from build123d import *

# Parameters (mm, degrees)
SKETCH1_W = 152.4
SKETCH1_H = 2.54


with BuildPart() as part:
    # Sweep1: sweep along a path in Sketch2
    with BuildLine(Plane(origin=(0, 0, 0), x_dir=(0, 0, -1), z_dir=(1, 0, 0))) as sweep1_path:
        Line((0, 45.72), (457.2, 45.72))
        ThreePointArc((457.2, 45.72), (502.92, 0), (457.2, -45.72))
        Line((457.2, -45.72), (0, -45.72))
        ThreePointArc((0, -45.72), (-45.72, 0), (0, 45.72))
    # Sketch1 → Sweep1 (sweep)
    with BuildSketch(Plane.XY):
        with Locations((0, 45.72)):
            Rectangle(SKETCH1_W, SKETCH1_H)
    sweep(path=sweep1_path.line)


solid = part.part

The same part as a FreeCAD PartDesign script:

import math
import FreeCAD as App
import Part
import Sketcher

V = App.Vector
Q = App.Units.Quantity

doc = App.newDocument("Part")
body = doc.addObject("PartDesign::Body", "Body")

sketch1 = body.newObject("Sketcher::SketchObject", "Sketch")
sketch1.AttachmentSupport = (doc.getObject("XY_Plane"), [""])
sketch1.MapMode = "FlatFace"
sketch1.addGeometry([
    Part.LineSegment(V(-76.2, 47, 0), V(-76.2, 44.5, 0)),
    Part.LineSegment(V(-76.2, 44.5, 0), V(76.2, 44.5, 0)),
    Part.LineSegment(V(76.2, 44.5, 0), V(76.2, 47, 0)),
    Part.LineSegment(V(76.2, 47, 0), V(-76.2, 47, 0)),
], False)
sketch1.addConstraint([
    Sketcher.Constraint("Coincident", 0, 2, 1, 1),
    Sketcher.Constraint("Coincident", 1, 2, 2, 1),
    Sketcher.Constraint("Coincident", 2, 2, 3, 1),
    Sketcher.Constraint("Coincident", 3, 2, 0, 1),
    Sketcher.Constraint("Vertical", 0),
    Sketcher.Constraint("Horizontal", 1),
    Sketcher.Constraint("Vertical", 2),
    Sketcher.Constraint("Horizontal", 3),
    Sketcher.Constraint("DistanceX", 1, 1, 1, 2, Q("6 in")),
    Sketcher.Constraint("DistanceY", 0, 2, 0, 1, Q("0.1 in")),
    Sketcher.Constraint("DistanceX", 0, 2, -1, 1, Q("3 in")),
    Sketcher.Constraint("DistanceY", -1, 1, 0, 2, Q("1.75 in")),
])

sketch2 = body.newObject("Sketcher::SketchObject", "Sketch001")
sketch2.AttachmentSupport = (doc.getObject("YZ_Plane"), [""])
sketch2.MapMode = "FlatFace"
sketch2.addGeometry([
    Part.LineSegment(V(46, 0, 0), V(46, -457, 0)),
    Part.ArcOfCircle(Part.Circle(V(0, -457, 0), V(0, 0, 1), 46), math.radians(180), math.radians(360)),
    Part.LineSegment(V(-46, -457, 0), V(-46, 0, 0)),
    Part.ArcOfCircle(Part.Circle(V(0, 0, 0), V(0, 0, 1), 46), math.radians(0), math.radians(180)),
], False)
sketch2.addConstraint([
    Sketcher.Constraint("Tangent", 0, 2, 1, 2),
    Sketcher.Constraint("Tangent", 1, 1, 2, 1),
    Sketcher.Constraint("Tangent", 2, 2, 3, 2),
    Sketcher.Constraint("Tangent", 3, 1, 0, 1),
    Sketcher.Constraint("Vertical", 0),
    Sketcher.Constraint("Vertical", 2),
    Sketcher.Constraint("Coincident", 3, 3, -1, 1),
    Sketcher.Constraint("Radius", 1, Q("1.8 in")),
    Sketcher.Constraint("DistanceY", 0, 2, 0, 1, Q("18 in")),
])
doc.recompute()

additivepipe = body.newObject("PartDesign::AdditivePipe", "AdditivePipe")
additivepipe.Profile = sketch1
additivepipe.Spine = (sketch2, ["Edge1", "Edge2", "Edge3", "Edge4"])

doc.recompute()
